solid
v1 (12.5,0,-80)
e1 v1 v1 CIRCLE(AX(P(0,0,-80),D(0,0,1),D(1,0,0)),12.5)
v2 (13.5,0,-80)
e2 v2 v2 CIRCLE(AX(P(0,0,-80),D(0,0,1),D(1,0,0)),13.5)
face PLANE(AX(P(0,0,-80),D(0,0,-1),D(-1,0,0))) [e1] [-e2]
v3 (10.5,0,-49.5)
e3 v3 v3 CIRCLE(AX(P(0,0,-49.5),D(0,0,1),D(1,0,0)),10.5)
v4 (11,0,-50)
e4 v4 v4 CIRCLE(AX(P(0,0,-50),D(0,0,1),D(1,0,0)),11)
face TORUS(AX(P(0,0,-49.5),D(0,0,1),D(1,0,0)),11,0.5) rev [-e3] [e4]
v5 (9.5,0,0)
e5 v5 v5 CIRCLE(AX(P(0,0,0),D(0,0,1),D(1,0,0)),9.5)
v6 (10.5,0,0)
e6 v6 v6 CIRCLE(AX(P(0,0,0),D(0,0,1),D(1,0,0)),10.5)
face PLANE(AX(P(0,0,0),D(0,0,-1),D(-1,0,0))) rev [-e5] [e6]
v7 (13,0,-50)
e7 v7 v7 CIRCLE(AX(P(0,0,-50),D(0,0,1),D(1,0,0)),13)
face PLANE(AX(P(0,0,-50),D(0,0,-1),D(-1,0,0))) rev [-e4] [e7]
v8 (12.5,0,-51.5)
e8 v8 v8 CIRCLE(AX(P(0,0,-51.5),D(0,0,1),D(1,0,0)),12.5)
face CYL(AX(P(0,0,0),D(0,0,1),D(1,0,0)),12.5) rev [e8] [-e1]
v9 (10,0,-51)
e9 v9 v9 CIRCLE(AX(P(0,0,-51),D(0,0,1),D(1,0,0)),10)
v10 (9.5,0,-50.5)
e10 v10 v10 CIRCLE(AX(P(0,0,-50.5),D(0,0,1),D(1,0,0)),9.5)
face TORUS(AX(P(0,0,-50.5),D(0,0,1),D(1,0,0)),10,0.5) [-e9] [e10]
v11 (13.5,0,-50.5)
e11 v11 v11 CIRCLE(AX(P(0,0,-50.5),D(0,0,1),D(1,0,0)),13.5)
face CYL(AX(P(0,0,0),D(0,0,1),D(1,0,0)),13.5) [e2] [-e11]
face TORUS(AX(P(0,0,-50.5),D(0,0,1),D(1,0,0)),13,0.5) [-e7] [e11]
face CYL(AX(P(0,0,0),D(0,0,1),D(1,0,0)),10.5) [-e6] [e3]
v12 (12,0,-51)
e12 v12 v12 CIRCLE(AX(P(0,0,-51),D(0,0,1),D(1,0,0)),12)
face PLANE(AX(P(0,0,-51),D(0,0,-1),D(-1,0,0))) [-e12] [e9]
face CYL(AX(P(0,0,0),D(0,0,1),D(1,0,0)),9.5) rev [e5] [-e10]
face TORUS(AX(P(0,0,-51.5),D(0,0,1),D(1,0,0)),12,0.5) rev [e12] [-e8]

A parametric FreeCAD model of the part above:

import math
import FreeCAD as App
import Part
import Sketcher

doc = App.newDocument("Part")
body = doc.addObject("PartDesign::Body", "Body")

# Sketch on YZ plane
sketch1 = doc.addObject("Sketcher::SketchObject", "Sketch")
body.addObject(sketch1)
sketch1.AttachmentSupport = (doc.YZ_Plane, [""])
sketch1.MapMode = "FlatFace"
sketch1.addGeometry([
    Part.LineSegment(App.Vector(13, -50, 0), App.Vector(11, -50, 0)),  # 0
    Part.ArcOfCircle(Part.Circle(App.Vector(11, -49.5, 0), App.Vector(0, 0, 1), 0.5), math.radians(180), math.radians(270)),  # 1
    Part.LineSegment(App.Vector(10.5, -49.5, 0), App.Vector(10.5, 0, 0)),  # 2
    Part.LineSegment(App.Vector(10.5, 0, 0), App.Vector(9.5, 0, 0)),  # 3
    Part.LineSegment(App.Vector(9.5, 0, 0), App.Vector(9.5, -50.5, 0)),  # 4
    Part.ArcOfCircle(Part.Circle(App.Vector(10, -50.5, 0), App.Vector(0, 0, 1), 0.5), math.radians(180), math.radians(270)),  # 5
    Part.LineSegment(App.Vector(10, -51, 0), App.Vector(12, -51, 0)),  # 6
    Part.ArcOfCircle(Part.Circle(App.Vector(12, -51.5, 0), App.Vector(0, 0, 1), 0.5), math.radians(0), math.radians(90)),  # 7
    Part.LineSegment(App.Vector(12.5, -51.5, 0), App.Vector(12.5, -80, 0)),  # 8
    Part.LineSegment(App.Vector(12.5, -80, 0), App.Vector(13.5, -80, 0)),  # 9
    Part.LineSegment(App.Vector(13.5, -80, 0), App.Vector(13.5, -50.5, 0)),  # 10
    Part.ArcOfCircle(Part.Circle(App.Vector(13, -50.5, 0), App.Vector(0, 0, 1), 0.5), math.radians(0), math.radians(90)),  # 11
], False)
sketch1.addConstraint([
    Sketcher.Constraint("Tangent", 0, 2, 1, 2),
    Sketcher.Constraint("Tangent", 1, 1, 2, 1),
    Sketcher.Constraint("Coincident", 2, 2, 3, 1),
    Sketcher.Constraint("Coincident", 3, 2, 4, 1),
    Sketcher.Constraint("Tangent", 4, 2, 5, 1),
    Sketcher.Constraint("Tangent", 5, 2, 6, 1),
    Sketcher.Constraint("Tangent", 6, 2, 7, 2),
    Sketcher.Constraint("Tangent", 7, 1, 8, 1),
    Sketcher.Constraint("Coincident", 8, 2, 9, 1),
    Sketcher.Constraint("Coincident", 9, 2, 10, 1),
    Sketcher.Constraint("Tangent", 10, 2, 11, 1),
    Sketcher.Constraint("Tangent", 11, 2, 0, 1),
    Sketcher.Constraint("Horizontal", 0),
    Sketcher.Constraint("Vertical", 2),
    Sketcher.Constraint("Horizontal", 3),
    Sketcher.Constraint("Vertical", 4),
    Sketcher.Constraint("Horizontal", 6),
    Sketcher.Constraint("Vertical", 8),
    Sketcher.Constraint("Horizontal", 9),
    Sketcher.Constraint("Vertical", 10),
    Sketcher.Constraint("Equal", 1, 5),
    Sketcher.Constraint("Equal", 5, 7),
    Sketcher.Constraint("Equal", 7, 11),
    Sketcher.Constraint("PointOnObject", 2, 2, -1),
    Sketcher.Constraint("Horizontal", 5, 3, 11, 3),
    Sketcher.Constraint("Equal", 0, 6),
    Sketcher.Constraint("Radius", 1, 0.5),
    Sketcher.Constraint("DistanceX", 0, 2, 0, 1, 2.0),
    Sketcher.Constraint("DistanceX", 3, 2, 3, 1, 1.0),
    Sketcher.Constraint("DistanceY", 2, 1, 2, 2, 49.5),
    Sketcher.Constraint("DistanceY", 8, 2, 8, 1, 28.5),
    Sketcher.Constraint("DistanceX", -1, 1, 1, 3, 11.0),
])
revolution = doc.addObject("PartDesign::Revolution", "Revolution")
body.addObject(revolution)
revolution.Profile = sketch1
revolution.ReferenceAxis = (sketch1, ["V_Axis"])
revolution.Angle = 360

doc.recompute()
